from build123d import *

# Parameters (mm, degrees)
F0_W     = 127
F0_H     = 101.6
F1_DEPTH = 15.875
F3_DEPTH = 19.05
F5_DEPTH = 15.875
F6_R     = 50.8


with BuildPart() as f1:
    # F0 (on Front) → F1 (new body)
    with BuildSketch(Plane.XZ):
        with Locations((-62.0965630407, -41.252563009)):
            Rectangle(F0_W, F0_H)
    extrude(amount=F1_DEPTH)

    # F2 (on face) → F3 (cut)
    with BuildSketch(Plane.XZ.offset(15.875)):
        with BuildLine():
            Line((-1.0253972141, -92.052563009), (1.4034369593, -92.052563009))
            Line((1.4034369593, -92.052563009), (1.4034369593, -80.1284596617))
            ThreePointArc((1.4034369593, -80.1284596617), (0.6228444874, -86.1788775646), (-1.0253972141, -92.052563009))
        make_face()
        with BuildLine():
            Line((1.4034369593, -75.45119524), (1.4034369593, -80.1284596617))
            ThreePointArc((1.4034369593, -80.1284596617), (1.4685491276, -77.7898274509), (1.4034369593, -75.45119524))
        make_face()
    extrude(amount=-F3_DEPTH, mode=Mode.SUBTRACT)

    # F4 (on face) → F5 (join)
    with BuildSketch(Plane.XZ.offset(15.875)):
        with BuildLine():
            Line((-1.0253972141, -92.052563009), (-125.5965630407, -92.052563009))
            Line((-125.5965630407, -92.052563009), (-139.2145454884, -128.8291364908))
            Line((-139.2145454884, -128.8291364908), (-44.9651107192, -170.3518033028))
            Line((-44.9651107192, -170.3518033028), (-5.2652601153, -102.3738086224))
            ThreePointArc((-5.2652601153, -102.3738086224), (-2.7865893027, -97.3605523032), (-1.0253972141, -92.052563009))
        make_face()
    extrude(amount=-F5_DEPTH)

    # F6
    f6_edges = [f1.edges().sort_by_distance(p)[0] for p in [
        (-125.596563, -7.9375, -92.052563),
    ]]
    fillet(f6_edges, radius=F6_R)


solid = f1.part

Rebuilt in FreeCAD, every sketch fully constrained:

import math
import FreeCAD as App
import Part
import Sketcher

V = App.Vector
Q = App.Units.Quantity


def edges_at(feature, points):
    """Names of the edges that pass closest to the given points."""
    edges = feature.Shape.Edges
    near = lambda p: min(range(len(edges)), key=lambda i: edges[i].distToShape(Part.Vertex(*p))[0])
    return sorted({f"Edge{near(p) + 1}" for p in points})

doc = App.newDocument("Part")
body = doc.addObject("PartDesign::Body", "Body")

# Sketch on XZ plane
sketch1 = body.newObject("Sketcher::SketchObject", "Sketch")
sketch1.AttachmentSupport = (doc.getObject("XZ_Plane"), [""])
sketch1.MapMode = "FlatFace"
sketch1.addGeometry([
    Part.LineSegment(V(-125.596563, 9.547437, 0), V(-125.596563, -92.052563, 0)),
    Part.LineSegment(V(-125.596563, -92.052563, 0), V(1.403437, -92.052563, 0)),
    Part.LineSegment(V(1.403437, -92.052563, 0), V(1.403437, 9.547437, 0)),
    Part.LineSegment(V(1.403437, 9.547437, 0), V(-125.596563, 9.547437, 0)),
], False)
sketch1.addConstraint([
    Sketcher.Constraint("Coincident", 0, 2, 1, 1),
    Sketcher.Constraint("Coincident", 1, 2, 2, 1),
    Sketcher.Constraint("Coincident", 2, 2, 3, 1),
    Sketcher.Constraint("Coincident", 3, 2, 0, 1),
    Sketcher.Constraint("Vertical", 0),
    Sketcher.Constraint("Horizontal", 1),
    Sketcher.Constraint("Vertical", 2),
    Sketcher.Constraint("Horizontal", 3),
    Sketcher.Constraint("DistanceX", 1, 1, 1, 2, Q("5 in")),
    Sketcher.Constraint("DistanceY", 0, 2, 0, 1, Q("4 in")),
    Sketcher.Constraint("DistanceX", 0, 2, -1, 1, Q("125.596563 mm")),
    Sketcher.Constraint("DistanceY", 0, 2, -1, 1, Q("92.052563 mm")),
])
pad1 = body.newObject("PartDesign::Pad", "Pad")
pad1.Profile = sketch1
pad1.Length = Q("0.625 in")

# Sketch on XZ plane
sketch2 = body.newObject("Sketcher::SketchObject", "Sketch001")
sketch2.AttachmentSupport = (doc.getObject("XZ_Plane"), [""])
sketch2.MapMode = "FlatFace"
sketch2.AttachmentOffset = App.Placement(V(0, 0, 0.625 * 25.4), App.Rotation())
sketch2.addGeometry([
    Part.LineSegment(V(-1.025397, -92.052563, 0), V(1.403437, -92.052563, 0)),  # 0
    Part.LineSegment(V(1.403437, -92.052563, 0), V(1.403437, -80.12846, 0)),  # 1
    Part.ArcOfCircle(Part.Circle(V(-40.562306, -77.789827, 0), V(0, 0, 1), 42.030855), math.radians(-19.836647), math.radians(-3.189633)),  # 2
    Part.LineSegment(V(1.403437, -75.451195, 0), V(1.403437, -80.12846, 0)),  # 3
    Part.ArcOfCircle(Part.Circle(V(-40.562306, -77.789827, 0), V(0, 0, 1), 42.030855), math.radians(-3.189633), math.radians(3.189633)),  # 4
], False)
sketch2.addConstraint([
    Sketcher.Constraint("Coincident", 0, 2, 1, 1),
    Sketcher.Constraint("Coincident", 1, 2, 2, 2),
    Sketcher.Constraint("Coincident", 2, 1, 0, 1),
    Sketcher.Constraint("Coincident", 3, 1, 4, 2),
    Sketcher.Constraint("Coincident", 4, 1, 3, 2),
    Sketcher.Constraint("Horizontal", 0),
    Sketcher.Constraint("Vertical", 1),
    Sketcher.Constraint("Vertical", 3),
    Sketcher.Constraint("Coincident", 4, 3, 2, 3),
    Sketcher.Constraint("Coincident", 4, 1, 1, 2),
    Sketcher.Constraint("Radius", 2, Q("42.030855 mm")),
    Sketcher.Constraint("DistanceX", 0, 1, 0, 2, Q("2.428834 mm")),
    Sketcher.Constraint("DistanceY", 1, 1, 1, 2, Q("11.924103 mm")),
    Sketcher.Constraint("DistanceY", 1, 2, -1, 1, Q("80.12846 mm")),
    Sketcher.Constraint("DistanceX", 2, 3, -1, 1, Q("40.562306 mm")),
])
pocket1 = body.newObject("PartDesign::Pocket", "Pocket")
pocket1.Profile = sketch2
pocket1.Length = Q("0.75 in")

# Sketch on XZ plane
sketch3 = body.newObject("Sketcher::SketchObject", "Sketch002")
sketch3.AttachmentSupport = (doc.getObject("XZ_Plane"), [""])
sketch3.MapMode = "FlatFace"
sketch3.AttachmentOffset = App.Placement(V(0, 0, 0.625 * 25.4), App.Rotation())
sketch3.addGeometry([
    Part.LineSegment(V(-1.025397, -92.052563, 0), V(-125.596563, -92.052563, 0)),  # 0
    Part.LineSegment(V(-125.596563, -92.052563, 0), V(-139.214545, -128.829136, 0)),  # 1
    Part.LineSegment(V(-139.214545, -128.829136, 0), V(-44.965111, -170.351803, 0)),  # 2
    Part.LineSegment(V(-44.965111, -170.351803, 0), V(-5.26526, -102.373809, 0)),  # 3
    Part.ArcOfCircle(Part.Circle(V(-40.084868, -82.038798, 0), V(0, 0, 1), 40.322671), math.radians(-30.285369), math.radians(-14.379352)),  # 4
], False)
sketch3.addConstraint([
    Sketcher.Constraint("Coincident", 0, 2, 1, 1),
    Sketcher.Constraint("Coincident", 1, 2, 2, 1),
    Sketcher.Constraint("Coincident", 2, 2, 3, 1),
    Sketcher.Constraint("Tangent", 3, 2, 4, 1),
    Sketcher.Constraint("Coincident", 4, 2, 0, 1),
    Sketcher.Constraint("Horizontal", 0),
    Sketcher.Constraint("Radius", 4, Q("40.322671 mm")),
    Sketcher.Constraint("DistanceX", 0, 2, 0, 1, Q("124.571166 mm")),
    Sketcher.Constraint("DistanceX", 4, 3, -1, 1, Q("40.084868 mm")),
    Sketcher.Constraint("DistanceX", 2, 2, -1, 1, Q("44.965111 mm")),
    Sketcher.Constraint("DistanceX", 3, 2, -1, 1, Q("5.26526 mm")),
    Sketcher.Constraint("DistanceY", 3, 2, -1, 1, Q("102.373809 mm")),
    Sketcher.Constraint("DistanceY", 1, 2, 4, 3, Q("46.790339 mm")),
    Sketcher.Constraint("DistanceY", 2, 2, 0, 2, Q("78.29924 mm")),
    Sketcher.Constraint("DistanceX", 1, 2, 4, 2, Q("138.189148 mm")),
])
pad2 = body.newObject("PartDesign::Pad", "Pad001")
pad2.Profile = sketch3
pad2.Length = Q("0.625 in")
pad2.Reversed = True
doc.recompute()

fillet = body.newObject("PartDesign::Fillet", "Fillet")
fillet.Base = (pad2, edges_at(pad2, [(-125.597, -7.938, -92.053)]))
fillet.Radius = Q("2 in")

doc.recompute()
